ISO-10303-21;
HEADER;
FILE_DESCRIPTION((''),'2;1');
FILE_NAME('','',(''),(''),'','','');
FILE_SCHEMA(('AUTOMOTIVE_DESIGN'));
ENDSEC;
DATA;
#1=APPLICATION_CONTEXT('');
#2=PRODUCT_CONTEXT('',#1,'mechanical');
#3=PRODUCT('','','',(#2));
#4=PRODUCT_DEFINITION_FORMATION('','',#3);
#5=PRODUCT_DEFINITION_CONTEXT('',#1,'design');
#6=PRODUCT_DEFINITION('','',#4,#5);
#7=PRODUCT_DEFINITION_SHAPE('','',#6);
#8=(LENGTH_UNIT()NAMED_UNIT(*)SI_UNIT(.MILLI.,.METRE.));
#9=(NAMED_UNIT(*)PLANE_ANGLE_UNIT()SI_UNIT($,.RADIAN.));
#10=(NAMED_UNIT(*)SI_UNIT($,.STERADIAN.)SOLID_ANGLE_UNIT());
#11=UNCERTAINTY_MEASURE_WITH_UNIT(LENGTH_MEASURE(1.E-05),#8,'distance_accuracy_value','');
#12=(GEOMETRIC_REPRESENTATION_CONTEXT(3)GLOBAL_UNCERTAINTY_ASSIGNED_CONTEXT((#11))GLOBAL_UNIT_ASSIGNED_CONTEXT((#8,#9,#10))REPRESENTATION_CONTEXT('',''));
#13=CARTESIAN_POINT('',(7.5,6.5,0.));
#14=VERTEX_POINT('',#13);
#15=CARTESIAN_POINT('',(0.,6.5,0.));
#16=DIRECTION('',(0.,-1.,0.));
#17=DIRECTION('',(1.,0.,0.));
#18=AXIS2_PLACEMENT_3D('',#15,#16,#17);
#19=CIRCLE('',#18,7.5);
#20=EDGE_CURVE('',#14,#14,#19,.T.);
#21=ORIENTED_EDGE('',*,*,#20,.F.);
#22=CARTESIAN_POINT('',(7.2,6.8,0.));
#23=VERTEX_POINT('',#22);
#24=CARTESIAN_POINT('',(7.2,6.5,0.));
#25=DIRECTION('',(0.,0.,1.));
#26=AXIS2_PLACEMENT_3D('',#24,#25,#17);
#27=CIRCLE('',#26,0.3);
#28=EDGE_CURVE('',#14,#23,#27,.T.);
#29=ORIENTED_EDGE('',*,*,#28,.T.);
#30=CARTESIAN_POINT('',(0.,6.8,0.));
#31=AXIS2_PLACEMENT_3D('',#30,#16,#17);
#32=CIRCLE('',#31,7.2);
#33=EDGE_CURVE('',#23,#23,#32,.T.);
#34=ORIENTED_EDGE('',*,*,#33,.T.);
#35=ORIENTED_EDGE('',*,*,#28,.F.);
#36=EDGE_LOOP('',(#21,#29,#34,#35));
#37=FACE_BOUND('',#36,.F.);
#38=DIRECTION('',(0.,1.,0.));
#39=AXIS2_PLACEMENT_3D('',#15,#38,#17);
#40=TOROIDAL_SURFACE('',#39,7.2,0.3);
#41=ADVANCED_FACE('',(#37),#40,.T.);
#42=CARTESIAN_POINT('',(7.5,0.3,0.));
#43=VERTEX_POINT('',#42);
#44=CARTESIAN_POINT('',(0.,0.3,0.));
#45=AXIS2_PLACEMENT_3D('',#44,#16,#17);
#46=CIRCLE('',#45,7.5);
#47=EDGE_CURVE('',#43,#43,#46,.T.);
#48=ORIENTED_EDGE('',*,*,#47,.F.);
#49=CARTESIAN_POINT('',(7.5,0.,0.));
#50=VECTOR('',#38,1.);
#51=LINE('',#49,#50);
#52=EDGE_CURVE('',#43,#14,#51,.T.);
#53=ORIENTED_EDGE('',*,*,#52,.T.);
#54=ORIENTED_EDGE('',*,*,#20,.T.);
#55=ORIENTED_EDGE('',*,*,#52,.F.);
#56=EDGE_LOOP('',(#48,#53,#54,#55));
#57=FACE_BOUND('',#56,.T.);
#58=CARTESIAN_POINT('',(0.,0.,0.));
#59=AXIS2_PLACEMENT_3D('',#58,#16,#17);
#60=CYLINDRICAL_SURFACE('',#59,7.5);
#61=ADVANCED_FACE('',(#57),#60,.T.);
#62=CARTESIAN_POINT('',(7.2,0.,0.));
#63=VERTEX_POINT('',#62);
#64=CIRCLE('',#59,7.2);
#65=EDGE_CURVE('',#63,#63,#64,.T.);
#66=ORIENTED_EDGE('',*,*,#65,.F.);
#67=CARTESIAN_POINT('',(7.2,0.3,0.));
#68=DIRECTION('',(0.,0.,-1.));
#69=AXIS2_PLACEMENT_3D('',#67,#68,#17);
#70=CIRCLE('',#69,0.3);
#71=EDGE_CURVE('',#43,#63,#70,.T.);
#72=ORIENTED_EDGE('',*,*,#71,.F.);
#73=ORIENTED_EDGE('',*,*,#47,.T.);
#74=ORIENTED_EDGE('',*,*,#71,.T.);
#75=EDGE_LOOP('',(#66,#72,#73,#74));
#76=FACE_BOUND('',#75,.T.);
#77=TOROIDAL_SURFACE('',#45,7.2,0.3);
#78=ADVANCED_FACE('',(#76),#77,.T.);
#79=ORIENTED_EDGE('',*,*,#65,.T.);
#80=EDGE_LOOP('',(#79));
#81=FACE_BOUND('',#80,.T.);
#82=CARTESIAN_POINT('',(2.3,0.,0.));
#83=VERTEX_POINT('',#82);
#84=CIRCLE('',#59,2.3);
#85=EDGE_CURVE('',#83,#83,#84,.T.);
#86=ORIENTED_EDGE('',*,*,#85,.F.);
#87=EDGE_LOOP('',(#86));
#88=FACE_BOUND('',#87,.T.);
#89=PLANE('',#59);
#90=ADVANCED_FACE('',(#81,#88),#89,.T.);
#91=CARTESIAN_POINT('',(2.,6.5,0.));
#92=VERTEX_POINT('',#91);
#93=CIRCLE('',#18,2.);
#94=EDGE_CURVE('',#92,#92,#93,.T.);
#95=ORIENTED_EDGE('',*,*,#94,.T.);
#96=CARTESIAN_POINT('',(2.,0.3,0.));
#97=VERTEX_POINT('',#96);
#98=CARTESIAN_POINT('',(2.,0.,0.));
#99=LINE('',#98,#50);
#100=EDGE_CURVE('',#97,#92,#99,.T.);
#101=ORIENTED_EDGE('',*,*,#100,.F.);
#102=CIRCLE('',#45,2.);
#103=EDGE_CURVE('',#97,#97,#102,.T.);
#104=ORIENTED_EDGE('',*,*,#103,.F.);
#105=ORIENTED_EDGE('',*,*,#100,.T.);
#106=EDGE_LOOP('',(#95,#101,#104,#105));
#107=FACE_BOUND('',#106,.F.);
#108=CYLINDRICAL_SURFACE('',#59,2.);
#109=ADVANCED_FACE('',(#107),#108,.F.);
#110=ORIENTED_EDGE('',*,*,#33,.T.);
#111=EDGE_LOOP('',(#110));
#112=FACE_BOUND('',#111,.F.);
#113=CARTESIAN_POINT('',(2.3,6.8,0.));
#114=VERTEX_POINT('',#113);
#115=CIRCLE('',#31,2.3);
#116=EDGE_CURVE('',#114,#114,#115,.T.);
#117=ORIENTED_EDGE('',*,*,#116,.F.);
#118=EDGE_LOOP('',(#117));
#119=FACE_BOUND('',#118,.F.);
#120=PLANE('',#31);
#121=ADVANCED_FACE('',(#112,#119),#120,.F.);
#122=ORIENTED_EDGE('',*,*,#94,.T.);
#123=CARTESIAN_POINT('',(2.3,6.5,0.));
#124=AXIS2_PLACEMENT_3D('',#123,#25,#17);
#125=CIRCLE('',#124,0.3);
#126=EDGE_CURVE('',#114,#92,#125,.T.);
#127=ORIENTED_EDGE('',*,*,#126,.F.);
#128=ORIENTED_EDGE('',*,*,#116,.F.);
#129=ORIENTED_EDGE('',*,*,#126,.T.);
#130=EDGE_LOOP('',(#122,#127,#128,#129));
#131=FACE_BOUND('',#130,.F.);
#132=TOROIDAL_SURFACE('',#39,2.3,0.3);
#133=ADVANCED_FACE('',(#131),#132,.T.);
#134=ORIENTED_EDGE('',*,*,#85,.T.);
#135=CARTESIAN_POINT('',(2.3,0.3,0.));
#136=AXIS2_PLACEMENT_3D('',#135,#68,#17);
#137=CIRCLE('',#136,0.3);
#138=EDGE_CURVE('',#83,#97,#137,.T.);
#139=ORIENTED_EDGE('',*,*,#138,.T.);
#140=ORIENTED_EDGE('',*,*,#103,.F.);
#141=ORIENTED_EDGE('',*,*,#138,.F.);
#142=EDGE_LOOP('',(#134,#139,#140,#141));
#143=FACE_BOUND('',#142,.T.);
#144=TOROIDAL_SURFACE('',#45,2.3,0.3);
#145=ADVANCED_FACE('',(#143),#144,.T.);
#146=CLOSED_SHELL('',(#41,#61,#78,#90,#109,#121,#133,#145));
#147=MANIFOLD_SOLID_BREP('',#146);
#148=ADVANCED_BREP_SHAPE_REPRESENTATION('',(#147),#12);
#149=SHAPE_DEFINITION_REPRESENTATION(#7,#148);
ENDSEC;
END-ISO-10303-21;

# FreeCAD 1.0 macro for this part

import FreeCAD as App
import Part
import Sketcher
from FreeCAD import Vector


def edges_at(feature, points):
    """Names of the edges that pass closest to the given points."""
    edges = feature.Shape.Edges
    near = lambda p: min(range(len(edges)), key=lambda i: edges[i].distToShape(Part.Vertex(*p))[0])
    return sorted({f"Edge{near(p) + 1}" for p in points})

doc = App.newDocument("Part")
params = doc.addObject("Spreadsheet::Sheet", "Params")
for row, (alias, value) in enumerate([
    ("sketch1_diameter", "15 mm"),
    ("pad1_length", "6.8 mm"),
    ("sketch2_diameter", "4 mm"),
    ("pocket1_length", "24.4 mm"),
    ("fillet_radius", "0.3 mm"),
    ("fillet2_radius", "0.3 mm"),
], start=1):
    params.set(f"A{row}", alias)
    params.set(f"B{row}", "=" + value)
    params.setAlias(f"B{row}", alias)

body = doc.addObject("PartDesign::Body", "Body")

# Sketch on XZ plane
sketch1 = body.newObject("Sketcher::SketchObject", "Sketch")
sketch1.AttachmentSupport = (doc.getObject("XZ_Plane"), [""])
sketch1.MapMode = "FlatFace"
sketch1.addGeometry(Part.Circle(Vector(0, 0, 0), Vector(0, 0, 1), 8), False)
sketch1.addConstraint([
    Sketcher.Constraint("Coincident", 0, 3, -1, 1),
    Sketcher.Constraint("Diameter", 0, 15.0),
])
sketch1.setExpression("Constraints[1]", "Params.sketch1_diameter")
pad1 = body.newObject("PartDesign::Pad", "Pad")
pad1.Profile = sketch1
pad1.setExpression("Length", "Params.pad1_length")
pad1.Reversed = True

# Sketch on XZ plane
sketch2 = body.newObject("Sketcher::SketchObject", "Sketch001")
sketch2.AttachmentSupport = (doc.getObject("XZ_Plane"), [""])
sketch2.MapMode = "FlatFace"
sketch2.addGeometry(Part.Circle(Vector(0, 0, 0), Vector(0, 0, 1), 2), False)
sketch2.addConstraint([
    Sketcher.Constraint("Coincident", 0, 3, -1, 1),
    Sketcher.Constraint("Diameter", 0, 4.0),
])
sketch2.setExpression("Constraints[1]", "Params.sketch2_diameter")
pocket1 = body.newObject("PartDesign::Pocket", "Pocket")
pocket1.Profile = sketch2
pocket1.setExpression("Length", "Params.pocket1_length")
doc.recompute()

fillet = body.newObject("PartDesign::Fillet", "Fillet")
fillet.Base = (pocket1, edges_at(pocket1, [(-7.5, 0, 0), (-2, 0, 0), (-7.5, 6.8, 0)]))
fillet.setExpression("Radius", "Params.fillet_radius")
doc.recompute()

fillet2 = body.newObject("PartDesign::Fillet", "Fillet001")
fillet2.Base = (fillet, edges_at(fillet, [(-2, 6.8, 0)]))
fillet2.setExpression("Radius", "Params.fillet2_radius")

doc.recompute()
